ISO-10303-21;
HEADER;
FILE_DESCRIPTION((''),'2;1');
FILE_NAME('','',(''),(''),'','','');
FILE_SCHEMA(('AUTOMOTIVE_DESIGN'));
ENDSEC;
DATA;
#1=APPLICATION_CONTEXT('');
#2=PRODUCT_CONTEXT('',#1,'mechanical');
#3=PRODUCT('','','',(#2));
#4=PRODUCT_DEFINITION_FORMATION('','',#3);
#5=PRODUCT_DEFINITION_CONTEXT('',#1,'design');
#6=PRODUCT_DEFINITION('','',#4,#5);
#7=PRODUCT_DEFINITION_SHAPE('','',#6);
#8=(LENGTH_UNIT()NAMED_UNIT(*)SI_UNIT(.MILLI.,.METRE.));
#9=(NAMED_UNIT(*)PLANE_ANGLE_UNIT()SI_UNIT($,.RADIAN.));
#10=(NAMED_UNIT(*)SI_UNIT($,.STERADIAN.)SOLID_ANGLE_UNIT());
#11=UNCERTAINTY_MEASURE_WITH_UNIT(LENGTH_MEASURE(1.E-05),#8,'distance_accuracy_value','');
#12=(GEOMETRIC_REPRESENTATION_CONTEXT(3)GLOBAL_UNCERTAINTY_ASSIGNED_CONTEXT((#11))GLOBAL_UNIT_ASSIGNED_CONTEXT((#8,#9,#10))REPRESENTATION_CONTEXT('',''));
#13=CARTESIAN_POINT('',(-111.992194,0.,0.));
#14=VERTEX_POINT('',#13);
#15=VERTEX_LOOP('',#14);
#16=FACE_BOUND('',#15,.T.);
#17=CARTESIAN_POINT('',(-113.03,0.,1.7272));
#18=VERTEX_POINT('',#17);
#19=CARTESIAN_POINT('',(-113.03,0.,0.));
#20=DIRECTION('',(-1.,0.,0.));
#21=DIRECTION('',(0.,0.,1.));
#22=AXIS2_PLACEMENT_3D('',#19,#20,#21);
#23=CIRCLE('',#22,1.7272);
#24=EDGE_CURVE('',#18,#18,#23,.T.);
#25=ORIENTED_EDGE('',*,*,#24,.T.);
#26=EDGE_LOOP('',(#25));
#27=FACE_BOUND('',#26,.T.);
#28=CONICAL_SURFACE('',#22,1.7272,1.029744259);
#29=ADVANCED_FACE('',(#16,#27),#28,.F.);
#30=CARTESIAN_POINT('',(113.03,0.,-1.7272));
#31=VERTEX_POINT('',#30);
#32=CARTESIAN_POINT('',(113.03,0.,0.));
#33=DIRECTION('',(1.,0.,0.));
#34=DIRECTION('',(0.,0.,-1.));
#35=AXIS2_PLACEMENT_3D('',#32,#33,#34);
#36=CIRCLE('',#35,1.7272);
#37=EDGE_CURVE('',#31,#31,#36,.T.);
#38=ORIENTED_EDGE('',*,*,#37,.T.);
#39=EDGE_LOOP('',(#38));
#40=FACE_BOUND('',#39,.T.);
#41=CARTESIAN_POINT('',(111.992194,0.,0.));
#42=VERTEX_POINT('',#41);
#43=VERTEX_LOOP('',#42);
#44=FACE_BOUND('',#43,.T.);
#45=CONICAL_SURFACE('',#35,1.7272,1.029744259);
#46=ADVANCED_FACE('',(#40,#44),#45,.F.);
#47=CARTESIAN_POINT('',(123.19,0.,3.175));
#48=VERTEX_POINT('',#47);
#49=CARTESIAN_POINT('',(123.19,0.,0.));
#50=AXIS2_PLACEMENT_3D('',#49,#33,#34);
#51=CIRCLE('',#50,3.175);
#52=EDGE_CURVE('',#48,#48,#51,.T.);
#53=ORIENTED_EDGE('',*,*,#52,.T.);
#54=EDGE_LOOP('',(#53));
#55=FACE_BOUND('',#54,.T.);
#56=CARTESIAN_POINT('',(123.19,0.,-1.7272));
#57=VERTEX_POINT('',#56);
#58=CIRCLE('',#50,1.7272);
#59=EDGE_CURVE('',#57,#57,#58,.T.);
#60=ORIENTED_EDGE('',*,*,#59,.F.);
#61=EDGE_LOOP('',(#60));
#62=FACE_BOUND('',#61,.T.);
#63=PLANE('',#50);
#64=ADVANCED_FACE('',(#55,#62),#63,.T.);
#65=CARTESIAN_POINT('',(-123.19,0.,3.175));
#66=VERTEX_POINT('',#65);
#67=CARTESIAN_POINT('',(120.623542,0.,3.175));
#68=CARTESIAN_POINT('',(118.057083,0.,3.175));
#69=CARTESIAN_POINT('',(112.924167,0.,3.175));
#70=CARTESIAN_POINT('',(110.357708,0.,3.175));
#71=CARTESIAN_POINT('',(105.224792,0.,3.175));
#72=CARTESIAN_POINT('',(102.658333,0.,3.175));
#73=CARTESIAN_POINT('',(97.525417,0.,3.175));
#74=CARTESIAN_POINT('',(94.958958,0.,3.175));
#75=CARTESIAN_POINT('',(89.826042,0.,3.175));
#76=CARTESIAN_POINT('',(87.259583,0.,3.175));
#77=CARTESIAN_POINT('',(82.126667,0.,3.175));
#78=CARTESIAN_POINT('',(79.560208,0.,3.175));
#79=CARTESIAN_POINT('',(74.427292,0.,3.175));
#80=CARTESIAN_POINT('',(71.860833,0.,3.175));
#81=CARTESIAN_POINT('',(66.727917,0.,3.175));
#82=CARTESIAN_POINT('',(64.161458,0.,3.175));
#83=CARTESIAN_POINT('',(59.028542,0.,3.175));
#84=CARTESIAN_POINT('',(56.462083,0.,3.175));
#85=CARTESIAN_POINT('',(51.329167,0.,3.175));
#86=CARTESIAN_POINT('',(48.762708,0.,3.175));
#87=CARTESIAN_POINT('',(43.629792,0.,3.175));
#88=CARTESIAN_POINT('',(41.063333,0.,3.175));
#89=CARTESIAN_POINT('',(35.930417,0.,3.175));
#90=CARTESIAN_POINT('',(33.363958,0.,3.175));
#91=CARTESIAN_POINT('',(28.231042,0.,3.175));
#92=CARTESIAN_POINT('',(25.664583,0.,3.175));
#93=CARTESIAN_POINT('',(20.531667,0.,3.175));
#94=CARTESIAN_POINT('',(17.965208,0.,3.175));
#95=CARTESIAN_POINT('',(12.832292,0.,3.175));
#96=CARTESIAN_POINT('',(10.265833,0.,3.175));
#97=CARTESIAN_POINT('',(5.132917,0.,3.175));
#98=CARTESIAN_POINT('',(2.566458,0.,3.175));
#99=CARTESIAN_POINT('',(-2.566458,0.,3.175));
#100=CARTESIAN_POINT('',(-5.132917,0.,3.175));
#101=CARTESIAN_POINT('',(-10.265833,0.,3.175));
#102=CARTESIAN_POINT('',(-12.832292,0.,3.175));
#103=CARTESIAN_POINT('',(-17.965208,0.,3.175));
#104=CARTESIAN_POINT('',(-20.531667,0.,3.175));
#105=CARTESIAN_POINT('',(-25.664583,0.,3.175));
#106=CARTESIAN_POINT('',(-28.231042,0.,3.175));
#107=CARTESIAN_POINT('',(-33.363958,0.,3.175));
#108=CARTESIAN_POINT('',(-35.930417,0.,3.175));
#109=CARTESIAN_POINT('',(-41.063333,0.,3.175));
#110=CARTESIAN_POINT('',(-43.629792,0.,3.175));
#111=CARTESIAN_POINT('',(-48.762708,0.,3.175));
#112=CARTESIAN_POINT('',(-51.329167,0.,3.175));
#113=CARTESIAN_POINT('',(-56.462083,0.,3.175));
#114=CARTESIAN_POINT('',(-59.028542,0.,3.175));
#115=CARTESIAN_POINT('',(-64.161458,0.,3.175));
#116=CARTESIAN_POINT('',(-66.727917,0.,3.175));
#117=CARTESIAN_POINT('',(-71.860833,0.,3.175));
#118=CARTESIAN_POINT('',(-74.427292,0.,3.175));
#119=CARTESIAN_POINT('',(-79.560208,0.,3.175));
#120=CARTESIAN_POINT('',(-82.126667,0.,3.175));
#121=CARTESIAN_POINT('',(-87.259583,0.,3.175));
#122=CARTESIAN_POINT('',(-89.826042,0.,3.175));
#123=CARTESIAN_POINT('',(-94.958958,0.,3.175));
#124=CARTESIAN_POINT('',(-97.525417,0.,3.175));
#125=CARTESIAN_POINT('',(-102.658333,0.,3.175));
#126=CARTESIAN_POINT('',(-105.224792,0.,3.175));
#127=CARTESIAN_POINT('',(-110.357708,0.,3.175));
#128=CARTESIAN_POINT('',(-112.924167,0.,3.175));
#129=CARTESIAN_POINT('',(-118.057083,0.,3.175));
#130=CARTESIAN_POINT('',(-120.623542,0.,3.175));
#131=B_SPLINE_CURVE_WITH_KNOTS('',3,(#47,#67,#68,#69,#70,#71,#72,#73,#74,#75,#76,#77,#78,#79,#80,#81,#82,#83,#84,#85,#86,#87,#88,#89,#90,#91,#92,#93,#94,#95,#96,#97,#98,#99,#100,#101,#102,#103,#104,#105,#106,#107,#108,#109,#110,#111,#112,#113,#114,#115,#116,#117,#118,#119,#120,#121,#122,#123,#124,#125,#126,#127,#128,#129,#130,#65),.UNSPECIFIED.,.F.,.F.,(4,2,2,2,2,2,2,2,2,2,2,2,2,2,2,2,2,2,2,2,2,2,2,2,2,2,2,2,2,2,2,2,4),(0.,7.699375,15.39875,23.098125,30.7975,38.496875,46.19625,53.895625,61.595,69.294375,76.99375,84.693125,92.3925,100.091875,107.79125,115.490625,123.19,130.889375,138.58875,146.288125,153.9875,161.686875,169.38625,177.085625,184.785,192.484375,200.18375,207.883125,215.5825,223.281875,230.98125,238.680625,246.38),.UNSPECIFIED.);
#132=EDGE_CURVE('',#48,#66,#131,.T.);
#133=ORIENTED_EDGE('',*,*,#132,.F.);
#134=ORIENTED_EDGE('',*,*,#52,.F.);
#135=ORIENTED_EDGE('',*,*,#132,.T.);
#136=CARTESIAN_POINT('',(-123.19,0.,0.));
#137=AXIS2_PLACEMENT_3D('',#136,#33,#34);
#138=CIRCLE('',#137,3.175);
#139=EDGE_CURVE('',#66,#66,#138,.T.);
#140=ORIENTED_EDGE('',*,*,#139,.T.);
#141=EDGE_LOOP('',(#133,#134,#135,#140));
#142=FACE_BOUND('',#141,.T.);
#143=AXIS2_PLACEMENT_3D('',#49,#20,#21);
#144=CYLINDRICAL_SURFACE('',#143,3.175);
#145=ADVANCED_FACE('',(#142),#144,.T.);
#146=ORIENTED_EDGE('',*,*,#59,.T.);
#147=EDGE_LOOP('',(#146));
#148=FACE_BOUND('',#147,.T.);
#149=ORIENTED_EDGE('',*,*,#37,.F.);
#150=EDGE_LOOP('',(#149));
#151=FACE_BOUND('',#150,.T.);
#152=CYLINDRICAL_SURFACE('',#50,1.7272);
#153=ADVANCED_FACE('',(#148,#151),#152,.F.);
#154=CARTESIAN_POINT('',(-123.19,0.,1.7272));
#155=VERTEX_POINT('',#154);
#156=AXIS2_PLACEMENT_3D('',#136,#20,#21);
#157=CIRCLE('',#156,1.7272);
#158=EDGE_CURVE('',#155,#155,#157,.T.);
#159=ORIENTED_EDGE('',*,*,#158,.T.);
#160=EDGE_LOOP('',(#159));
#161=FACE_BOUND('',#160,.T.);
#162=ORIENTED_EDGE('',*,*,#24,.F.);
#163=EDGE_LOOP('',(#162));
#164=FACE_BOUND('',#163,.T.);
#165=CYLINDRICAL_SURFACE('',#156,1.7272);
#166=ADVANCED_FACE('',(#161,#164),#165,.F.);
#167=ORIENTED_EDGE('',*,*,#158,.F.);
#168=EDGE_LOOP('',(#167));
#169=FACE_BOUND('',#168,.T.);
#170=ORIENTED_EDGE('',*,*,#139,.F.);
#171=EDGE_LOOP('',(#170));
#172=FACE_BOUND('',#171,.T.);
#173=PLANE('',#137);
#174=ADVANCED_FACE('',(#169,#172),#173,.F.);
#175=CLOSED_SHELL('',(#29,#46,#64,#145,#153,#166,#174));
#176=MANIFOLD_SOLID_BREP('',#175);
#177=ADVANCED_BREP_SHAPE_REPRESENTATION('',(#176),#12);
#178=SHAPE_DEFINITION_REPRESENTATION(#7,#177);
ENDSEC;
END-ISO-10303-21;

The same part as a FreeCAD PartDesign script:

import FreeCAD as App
import Part
import Sketcher
Q = App.Units.Quantity

doc = App.newDocument("Part")
body = doc.addObject("PartDesign::Body", "Body")

sketch1 = body.newObject("Sketcher::SketchObject", "Sketch")
sketch1.AttachmentSupport = (doc.getObject("YZ_Plane"), [""])
sketch1.MapMode = "FlatFace"
sketch1.addGeometry(Part.Circle(App.Vector(0, 0, 0), App.Vector(0, 0, 1), 3.2), False)
sketch1.addConstraint([
    Sketcher.Constraint("Coincident", 0, 3, -1, 1),
    Sketcher.Constraint("Diameter", 0, Q("0.25 in")),
])
pad1 = body.newObject("PartDesign::Pad", "Pad")
pad1.Profile = sketch1
pad1.Length = Q("9.7 in")
pad1.Midplane = True

sketch2 = body.newObject("Sketcher::SketchObject", "Sketch001")
sketch2.AttachmentSupport = (doc.getObject("XZ_Plane"), [""])
sketch2.MapMode = "FlatFace"
sketch2.addGeometry([
    Part.LineSegment(App.Vector(112, 0, 0), App.Vector(123.2, 0, 0)),
    Part.LineSegment(App.Vector(123.2, 0, 0), App.Vector(123.2, -1.7, 0)),
    Part.LineSegment(App.Vector(123.2, -1.7, 0), App.Vector(113, -1.7, 0)),
    Part.LineSegment(App.Vector(113, -1.7, 0), App.Vector(112, 0, 0)),
], False)
sketch2.addConstraint([
    Sketcher.Constraint("Coincident", 0, 2, 1, 1),
    Sketcher.Constraint("Coincident", 1, 2, 2, 1),
    Sketcher.Constraint("Coincident", 2, 2, 3, 1),
    Sketcher.Constraint("Coincident", 3, 2, 0, 1),
    Sketcher.Constraint("Horizontal", 0),
    Sketcher.Constraint("Vertical", 1),
    Sketcher.Constraint("Horizontal", 2),
    Sketcher.Constraint("PointOnObject", 0, 2, -1),
    Sketcher.Constraint("DistanceX", 2, 2, 2, 1, Q("0.4 in")),
    Sketcher.Constraint("Angle", 3, Q("121 deg")),
    Sketcher.Constraint("DistanceY", 1, 2, 1, 1, Q("0.068 in")),
    Sketcher.Constraint("DistanceX", -1, 1, 0, 2, Q("4.85 in")),
])
groove = body.newObject("PartDesign::Groove", "Groove")
groove.Profile = sketch2
groove.ReferenceAxis = (sketch2, ["H_Axis"])
groove.Angle = 360
doc.recompute()

mirrored = body.newObject("PartDesign::Mirrored", "Mirrored")
mirrored.Originals = [groove]
mirrored.MirrorPlane = (doc.getObject("YZ_Plane"), [""])
body.Tip = mirrored

doc.recompute()
